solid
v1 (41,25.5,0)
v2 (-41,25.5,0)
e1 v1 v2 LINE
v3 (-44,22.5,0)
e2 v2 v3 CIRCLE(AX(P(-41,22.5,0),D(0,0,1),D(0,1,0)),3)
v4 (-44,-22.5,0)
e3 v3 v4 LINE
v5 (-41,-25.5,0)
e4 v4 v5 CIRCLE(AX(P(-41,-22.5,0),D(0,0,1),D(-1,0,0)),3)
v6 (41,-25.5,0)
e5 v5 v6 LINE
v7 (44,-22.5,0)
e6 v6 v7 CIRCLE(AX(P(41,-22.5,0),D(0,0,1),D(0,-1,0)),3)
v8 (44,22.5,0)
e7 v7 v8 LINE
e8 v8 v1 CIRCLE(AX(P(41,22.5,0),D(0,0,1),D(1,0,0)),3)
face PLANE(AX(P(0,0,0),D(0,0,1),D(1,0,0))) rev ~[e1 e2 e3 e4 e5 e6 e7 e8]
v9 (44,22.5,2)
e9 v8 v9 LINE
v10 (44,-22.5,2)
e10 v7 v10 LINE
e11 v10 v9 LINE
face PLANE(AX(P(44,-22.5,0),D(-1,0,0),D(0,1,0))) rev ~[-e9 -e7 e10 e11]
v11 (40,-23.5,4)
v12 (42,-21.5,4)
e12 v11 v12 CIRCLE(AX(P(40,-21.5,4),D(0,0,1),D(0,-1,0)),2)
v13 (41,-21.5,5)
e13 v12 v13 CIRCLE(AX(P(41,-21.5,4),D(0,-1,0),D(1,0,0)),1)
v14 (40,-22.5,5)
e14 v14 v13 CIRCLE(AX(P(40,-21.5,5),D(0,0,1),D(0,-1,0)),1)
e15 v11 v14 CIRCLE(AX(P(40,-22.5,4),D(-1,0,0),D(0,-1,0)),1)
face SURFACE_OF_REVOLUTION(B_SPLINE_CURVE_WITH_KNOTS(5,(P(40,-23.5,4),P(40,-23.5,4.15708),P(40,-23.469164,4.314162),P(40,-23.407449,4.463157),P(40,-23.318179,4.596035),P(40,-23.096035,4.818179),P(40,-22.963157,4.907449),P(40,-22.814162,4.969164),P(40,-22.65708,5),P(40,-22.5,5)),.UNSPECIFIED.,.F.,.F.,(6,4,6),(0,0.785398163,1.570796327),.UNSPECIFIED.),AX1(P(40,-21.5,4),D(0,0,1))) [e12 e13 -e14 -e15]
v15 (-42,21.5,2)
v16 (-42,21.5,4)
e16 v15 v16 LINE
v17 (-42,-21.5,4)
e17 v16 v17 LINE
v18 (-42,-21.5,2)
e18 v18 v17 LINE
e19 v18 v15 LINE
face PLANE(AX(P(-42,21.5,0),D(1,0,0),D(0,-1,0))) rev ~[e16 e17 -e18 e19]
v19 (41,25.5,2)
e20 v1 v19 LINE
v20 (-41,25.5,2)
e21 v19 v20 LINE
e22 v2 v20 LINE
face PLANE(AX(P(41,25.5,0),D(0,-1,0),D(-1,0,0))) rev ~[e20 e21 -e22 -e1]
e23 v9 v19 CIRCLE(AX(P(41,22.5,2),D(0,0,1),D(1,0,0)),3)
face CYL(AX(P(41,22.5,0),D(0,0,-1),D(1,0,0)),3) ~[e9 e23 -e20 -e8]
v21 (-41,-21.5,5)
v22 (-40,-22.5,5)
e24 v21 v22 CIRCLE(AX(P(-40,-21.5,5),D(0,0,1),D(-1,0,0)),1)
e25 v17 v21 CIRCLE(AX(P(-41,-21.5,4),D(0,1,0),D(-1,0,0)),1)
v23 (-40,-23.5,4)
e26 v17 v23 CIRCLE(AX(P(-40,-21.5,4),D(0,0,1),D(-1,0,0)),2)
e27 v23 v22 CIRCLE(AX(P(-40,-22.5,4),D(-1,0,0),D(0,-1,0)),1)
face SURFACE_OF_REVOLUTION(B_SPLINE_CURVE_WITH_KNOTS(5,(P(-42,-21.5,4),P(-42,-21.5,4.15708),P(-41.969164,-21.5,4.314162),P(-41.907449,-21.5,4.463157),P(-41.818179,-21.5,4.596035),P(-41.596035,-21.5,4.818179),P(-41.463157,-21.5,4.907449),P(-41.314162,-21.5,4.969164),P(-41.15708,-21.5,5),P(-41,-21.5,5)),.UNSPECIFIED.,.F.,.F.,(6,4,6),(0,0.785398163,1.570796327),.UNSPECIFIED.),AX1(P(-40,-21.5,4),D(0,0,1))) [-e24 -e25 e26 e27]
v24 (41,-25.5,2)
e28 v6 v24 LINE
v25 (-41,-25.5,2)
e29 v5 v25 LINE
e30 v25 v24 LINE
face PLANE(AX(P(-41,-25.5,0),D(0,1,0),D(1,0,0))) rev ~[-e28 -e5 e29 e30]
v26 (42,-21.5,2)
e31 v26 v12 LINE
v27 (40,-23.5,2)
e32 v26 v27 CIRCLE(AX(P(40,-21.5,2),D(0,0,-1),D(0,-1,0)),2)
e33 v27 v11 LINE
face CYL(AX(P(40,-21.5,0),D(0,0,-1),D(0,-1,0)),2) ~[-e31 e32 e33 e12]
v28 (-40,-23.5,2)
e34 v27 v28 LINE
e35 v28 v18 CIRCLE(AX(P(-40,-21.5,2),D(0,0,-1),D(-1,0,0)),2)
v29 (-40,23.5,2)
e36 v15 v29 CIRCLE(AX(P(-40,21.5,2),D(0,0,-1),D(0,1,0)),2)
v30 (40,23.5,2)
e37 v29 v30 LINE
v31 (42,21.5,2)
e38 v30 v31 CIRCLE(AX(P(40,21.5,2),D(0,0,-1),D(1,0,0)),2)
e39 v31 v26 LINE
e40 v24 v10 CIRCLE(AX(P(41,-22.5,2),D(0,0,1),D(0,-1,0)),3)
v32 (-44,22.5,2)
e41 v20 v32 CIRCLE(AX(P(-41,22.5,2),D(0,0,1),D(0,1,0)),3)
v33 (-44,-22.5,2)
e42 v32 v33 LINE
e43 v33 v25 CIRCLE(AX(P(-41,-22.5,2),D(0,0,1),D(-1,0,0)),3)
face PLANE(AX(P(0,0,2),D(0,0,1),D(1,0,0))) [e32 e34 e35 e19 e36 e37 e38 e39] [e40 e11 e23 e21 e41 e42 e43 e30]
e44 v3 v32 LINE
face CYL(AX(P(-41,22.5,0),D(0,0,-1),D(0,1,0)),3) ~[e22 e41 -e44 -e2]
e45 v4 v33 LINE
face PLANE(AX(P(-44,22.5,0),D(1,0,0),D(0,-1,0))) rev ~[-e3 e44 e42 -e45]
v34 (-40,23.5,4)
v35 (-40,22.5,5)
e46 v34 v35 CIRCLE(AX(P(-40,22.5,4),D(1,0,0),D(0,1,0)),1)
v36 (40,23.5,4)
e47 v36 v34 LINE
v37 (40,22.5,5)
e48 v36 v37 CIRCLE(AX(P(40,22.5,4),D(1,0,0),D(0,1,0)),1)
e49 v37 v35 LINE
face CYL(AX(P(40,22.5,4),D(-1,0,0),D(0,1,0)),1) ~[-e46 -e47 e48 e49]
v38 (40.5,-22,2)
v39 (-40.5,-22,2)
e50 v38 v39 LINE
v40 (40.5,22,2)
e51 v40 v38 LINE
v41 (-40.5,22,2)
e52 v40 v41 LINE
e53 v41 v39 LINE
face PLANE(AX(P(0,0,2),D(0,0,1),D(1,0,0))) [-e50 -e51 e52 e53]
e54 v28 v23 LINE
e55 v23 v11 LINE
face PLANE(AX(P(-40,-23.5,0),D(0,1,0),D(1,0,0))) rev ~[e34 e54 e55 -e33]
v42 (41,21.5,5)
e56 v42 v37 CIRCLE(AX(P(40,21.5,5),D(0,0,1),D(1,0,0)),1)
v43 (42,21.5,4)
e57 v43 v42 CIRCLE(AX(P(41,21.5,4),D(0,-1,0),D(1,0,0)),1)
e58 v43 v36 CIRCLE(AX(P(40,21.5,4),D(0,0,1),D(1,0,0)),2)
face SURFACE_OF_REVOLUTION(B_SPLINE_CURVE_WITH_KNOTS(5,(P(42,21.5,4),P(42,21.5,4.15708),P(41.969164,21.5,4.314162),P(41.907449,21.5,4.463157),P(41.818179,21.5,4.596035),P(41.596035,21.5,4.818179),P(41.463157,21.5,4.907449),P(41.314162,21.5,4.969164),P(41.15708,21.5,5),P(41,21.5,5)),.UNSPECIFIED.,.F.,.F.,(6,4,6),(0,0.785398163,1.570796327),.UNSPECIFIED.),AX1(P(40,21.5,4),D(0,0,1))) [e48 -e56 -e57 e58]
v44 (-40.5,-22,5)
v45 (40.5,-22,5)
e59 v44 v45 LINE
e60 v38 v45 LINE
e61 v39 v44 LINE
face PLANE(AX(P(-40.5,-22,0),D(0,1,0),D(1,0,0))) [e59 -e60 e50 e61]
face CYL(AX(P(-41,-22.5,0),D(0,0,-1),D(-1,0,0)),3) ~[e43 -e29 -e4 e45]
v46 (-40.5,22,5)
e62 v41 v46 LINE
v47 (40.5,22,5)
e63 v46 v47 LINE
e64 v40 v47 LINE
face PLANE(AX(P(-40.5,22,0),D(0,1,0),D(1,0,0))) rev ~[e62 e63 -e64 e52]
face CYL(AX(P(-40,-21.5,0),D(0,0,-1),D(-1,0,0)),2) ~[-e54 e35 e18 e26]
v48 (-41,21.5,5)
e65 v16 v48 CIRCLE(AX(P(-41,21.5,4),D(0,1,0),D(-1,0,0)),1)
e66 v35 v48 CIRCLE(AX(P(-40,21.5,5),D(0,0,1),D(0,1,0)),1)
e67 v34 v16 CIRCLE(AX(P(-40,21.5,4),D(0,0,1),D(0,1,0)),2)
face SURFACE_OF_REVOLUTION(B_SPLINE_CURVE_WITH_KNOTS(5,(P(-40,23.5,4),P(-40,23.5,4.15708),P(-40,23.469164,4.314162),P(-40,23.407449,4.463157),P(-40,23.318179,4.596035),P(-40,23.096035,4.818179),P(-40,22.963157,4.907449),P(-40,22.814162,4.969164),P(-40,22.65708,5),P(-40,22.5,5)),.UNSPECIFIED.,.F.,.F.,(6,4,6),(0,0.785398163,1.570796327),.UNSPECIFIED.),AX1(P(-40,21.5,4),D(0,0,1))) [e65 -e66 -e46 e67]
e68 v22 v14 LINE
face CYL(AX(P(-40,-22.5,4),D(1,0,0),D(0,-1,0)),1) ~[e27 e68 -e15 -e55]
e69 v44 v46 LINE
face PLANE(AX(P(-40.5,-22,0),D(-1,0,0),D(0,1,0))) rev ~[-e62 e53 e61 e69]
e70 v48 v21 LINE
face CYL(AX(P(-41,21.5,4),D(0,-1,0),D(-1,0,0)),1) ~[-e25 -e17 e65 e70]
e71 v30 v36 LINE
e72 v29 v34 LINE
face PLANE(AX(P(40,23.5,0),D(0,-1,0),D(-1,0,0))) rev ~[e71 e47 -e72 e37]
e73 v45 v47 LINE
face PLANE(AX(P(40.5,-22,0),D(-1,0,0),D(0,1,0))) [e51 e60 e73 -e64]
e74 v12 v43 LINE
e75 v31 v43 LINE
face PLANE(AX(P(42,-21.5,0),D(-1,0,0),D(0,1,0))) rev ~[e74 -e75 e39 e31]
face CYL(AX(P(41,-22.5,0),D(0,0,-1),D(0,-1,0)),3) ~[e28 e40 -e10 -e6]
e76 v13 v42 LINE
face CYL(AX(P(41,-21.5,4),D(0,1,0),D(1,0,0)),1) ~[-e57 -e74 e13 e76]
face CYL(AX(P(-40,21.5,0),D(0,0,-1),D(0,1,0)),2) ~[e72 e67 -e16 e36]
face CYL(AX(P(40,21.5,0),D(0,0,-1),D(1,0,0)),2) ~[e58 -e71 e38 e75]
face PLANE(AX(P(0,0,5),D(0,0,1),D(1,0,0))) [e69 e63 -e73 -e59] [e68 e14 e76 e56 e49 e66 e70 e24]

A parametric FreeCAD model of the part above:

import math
import FreeCAD as App
import Part
import Sketcher
from FreeCAD import Vector
Q = App.Units.Quantity


def edges_at(feature, points):
    """Names of the edges that pass closest to the given points."""
    edges = feature.Shape.Edges
    near = lambda p: min(range(len(edges)), key=lambda i: edges[i].distToShape(Part.Vertex(*p))[0])
    return sorted({f"Edge{near(p) + 1}" for p in points})


def add_polygon(sketch, points):
    """Adds a closed chain of lines whose ends are joined by coincident constraints."""
    first, n = sketch.GeometryCount, len(points)
    for a, b in zip(points, points[1:] + points[:1]):
        sketch.addGeometry(Part.LineSegment(App.Vector(*a, 0), App.Vector(*b, 0)), False)
    for i in range(n):
        sketch.addConstraint(Sketcher.Constraint("Coincident", first + i, 2, first + (i + 1) % n, 1))

doc = App.newDocument("Part")
params = doc.addObject("Spreadsheet::Sheet", "Params")
for row, (alias, value) in enumerate([
    ("sketch1_radius", "3 mm"),
    ("sketch1_width", "82 mm"),
    ("sketch1_height", "45 mm"),
    ("pad1_length", "2 mm"),
    ("sketch2_radius", "2 mm"),
    ("sketch2_width", "80 mm"),
    ("sketch2_width2", "81 mm"),
    ("sketch2_height", "43 mm"),
    ("sketch2_height2", "44 mm"),
    ("pad2_length", "5 mm"),
    ("fillet_radius", "1 mm"),
], start=1):
    params.set(f"A{row}", alias)
    params.set(f"B{row}", "=" + value)
    params.setAlias(f"B{row}", alias)

body = doc.addObject("PartDesign::Body", "Body")

sketch1 = doc.addObject("Sketcher::SketchObject", "Sketch")
body.addObject(sketch1)
sketch1.AttachmentSupport = (doc.XY_Plane, [""])
sketch1.MapMode = "FlatFace"
sketch1.addGeometry([
    Part.LineSegment(Vector(-41, -25.5, 0), Vector(41, -25.5, 0)),
    Part.ArcOfCircle(Part.Circle(Vector(41, -22.5, 0), Vector(0, 0, 1), 3), math.radians(-90), math.radians(0)),
    Part.LineSegment(Vector(44, -22.5, 0), Vector(44, 22.5, 0)),
    Part.ArcOfCircle(Part.Circle(Vector(41, 22.5, 0), Vector(0, 0, 1), 3), math.radians(0), math.radians(90)),
    Part.LineSegment(Vector(41, 25.5, 0), Vector(-41, 25.5, 0)),
    Part.ArcOfCircle(Part.Circle(Vector(-41, 22.5, 0), Vector(0, 0, 1), 3), math.radians(90), math.radians(180)),
    Part.LineSegment(Vector(-44, 22.5, 0), Vector(-44, -22.5, 0)),
    Part.ArcOfCircle(Part.Circle(Vector(-41, -22.5, 0), Vector(0, 0, 1), 3), math.radians(180), math.radians(270)),
], False)
sketch1.addConstraint([
    Sketcher.Constraint("Tangent", 0, 2, 1, 1),
    Sketcher.Constraint("Tangent", 1, 2, 2, 1),
    Sketcher.Constraint("Tangent", 2, 2, 3, 1),
    Sketcher.Constraint("Tangent", 3, 2, 4, 1),
    Sketcher.Constraint("Tangent", 4, 2, 5, 1),
    Sketcher.Constraint("Tangent", 5, 2, 6, 1),
    Sketcher.Constraint("Tangent", 6, 2, 7, 1),
    Sketcher.Constraint("Tangent", 7, 2, 0, 1),
    Sketcher.Constraint("Horizontal", 0),
    Sketcher.Constraint("Vertical", 2),
    Sketcher.Constraint("Horizontal", 4),
    Sketcher.Constraint("Vertical", 6),
    Sketcher.Constraint("Equal", 1, 3),
    Sketcher.Constraint("Equal", 3, 5),
    Sketcher.Constraint("Equal", 5, 7),
    Sketcher.Constraint("Symmetric", 1, 3, 5, 3, -1, 1),
    Sketcher.Constraint("Radius", 1, Q("3 mm")),
    Sketcher.Constraint("DistanceX", 0, 1, 0, 2, Q("82 mm")),
    Sketcher.Constraint("DistanceY", 2, 1, 2, 2, Q("45 mm")),
])
sketch1.setExpression("Constraints[16]", "Params.sketch1_radius")
sketch1.setExpression("Constraints[17]", "Params.sketch1_width")
sketch1.setExpression("Constraints[18]", "Params.sketch1_height")
pad1 = doc.addObject("PartDesign::Pad", "Pad")
body.addObject(pad1)
pad1.Profile = sketch1
pad1.setExpression("Length", "Params.pad1_length")

sketch2 = doc.addObject("Sketcher::SketchObject", "Sketch001")
body.addObject(sketch2)
sketch2.AttachmentSupport = (doc.XY_Plane, [""])
sketch2.MapMode = "FlatFace"
sketch2.addGeometry(Part.ArcOfCircle(Part.Circle(Vector(40, 21.5, 0), Vector(0, 0, 1), 2), math.radians(0), math.radians(90)), False)
sketch2.addGeometry(Part.LineSegment(Vector(40, 23.5, 0), Vector(-40, 23.5, 0)), False)
sketch2.addGeometry(Part.ArcOfCircle(Part.Circle(Vector(-40, 21.5, 0), Vector(0, 0, 1), 2), math.radians(90), math.radians(180)), False)
sketch2.addGeometry(Part.LineSegment(Vector(-42, 21.5, 0), Vector(-42, -21.5, 0)), False)
sketch2.addGeometry(Part.ArcOfCircle(Part.Circle(Vector(-40, -21.5, 0), Vector(0, 0, 1), 2), math.radians(180), math.radians(270)), False)
sketch2.addGeometry(Part.LineSegment(Vector(-40, -23.5, 0), Vector(40, -23.5, 0)), False)
sketch2.addGeometry(Part.ArcOfCircle(Part.Circle(Vector(40, -21.5, 0), Vector(0, 0, 1), 2), math.radians(-90), math.radians(0)), False)
sketch2.addGeometry(Part.LineSegment(Vector(42, -21.5, 0), Vector(42, 21.5, 0)), False)
add_polygon(sketch2, [(40.5, -22), (-40.5, -22), (-40.5, 22), (40.5, 22)])
sketch2.addConstraint([
    Sketcher.Constraint("Tangent", 0, 2, 1, 1),
    Sketcher.Constraint("Tangent", 1, 2, 2, 1),
    Sketcher.Constraint("Tangent", 2, 2, 3, 1),
    Sketcher.Constraint("Tangent", 3, 2, 4, 1),
    Sketcher.Constraint("Tangent", 4, 2, 5, 1),
    Sketcher.Constraint("Tangent", 5, 2, 6, 1),
    Sketcher.Constraint("Tangent", 6, 2, 7, 1),
    Sketcher.Constraint("Tangent", 7, 2, 0, 1),
    Sketcher.Constraint("Horizontal", 1),
    Sketcher.Constraint("Vertical", 3),
    Sketcher.Constraint("Horizontal", 5),
    Sketcher.Constraint("Vertical", 7),
    Sketcher.Constraint("Horizontal", 8),
    Sketcher.Constraint("Vertical", 9),
    Sketcher.Constraint("Horizontal", 10),
    Sketcher.Constraint("Vertical", 11),
    Sketcher.Constraint("Equal", 0, 2),
    Sketcher.Constraint("Equal", 2, 4),
    Sketcher.Constraint("Equal", 4, 6),
    Sketcher.Constraint("Symmetric", 0, 3, 4, 3, -1, 1),
    Sketcher.Constraint("Symmetric", 8, 2, 10, 2, -1, 1),
    Sketcher.Constraint("Radius", 0, Q("2 mm")),
    Sketcher.Constraint("DistanceX", 1, 2, 1, 1, Q("80 mm")),
    Sketcher.Constraint("DistanceX", 8, 2, 8, 1, Q("81 mm")),
    Sketcher.Constraint("DistanceY", 3, 2, 3, 1, Q("43 mm")),
    Sketcher.Constraint("DistanceY", 9, 1, 9, 2, Q("44 mm")),
])
sketch2.setExpression("Constraints[25]", "Params.sketch2_radius")
sketch2.setExpression("Constraints[26]", "Params.sketch2_width")
sketch2.setExpression("Constraints[27]", "Params.sketch2_width2")
sketch2.setExpression("Constraints[28]", "Params.sketch2_height")
sketch2.setExpression("Constraints[29]", "Params.sketch2_height2")
pad2 = doc.addObject("PartDesign::Pad", "Pad001")
body.addObject(pad2)
pad2.Profile = sketch2
pad2.setExpression("Length", "Params.pad2_length")
doc.recompute()

fillet = doc.addObject("PartDesign::Fillet", "Fillet")
body.addObject(fillet)
fillet.Base = (pad2, edges_at(pad2, [(-42, 0, 5)]))
fillet.setExpression("Radius", "Params.fillet_radius")

doc.recompute()
